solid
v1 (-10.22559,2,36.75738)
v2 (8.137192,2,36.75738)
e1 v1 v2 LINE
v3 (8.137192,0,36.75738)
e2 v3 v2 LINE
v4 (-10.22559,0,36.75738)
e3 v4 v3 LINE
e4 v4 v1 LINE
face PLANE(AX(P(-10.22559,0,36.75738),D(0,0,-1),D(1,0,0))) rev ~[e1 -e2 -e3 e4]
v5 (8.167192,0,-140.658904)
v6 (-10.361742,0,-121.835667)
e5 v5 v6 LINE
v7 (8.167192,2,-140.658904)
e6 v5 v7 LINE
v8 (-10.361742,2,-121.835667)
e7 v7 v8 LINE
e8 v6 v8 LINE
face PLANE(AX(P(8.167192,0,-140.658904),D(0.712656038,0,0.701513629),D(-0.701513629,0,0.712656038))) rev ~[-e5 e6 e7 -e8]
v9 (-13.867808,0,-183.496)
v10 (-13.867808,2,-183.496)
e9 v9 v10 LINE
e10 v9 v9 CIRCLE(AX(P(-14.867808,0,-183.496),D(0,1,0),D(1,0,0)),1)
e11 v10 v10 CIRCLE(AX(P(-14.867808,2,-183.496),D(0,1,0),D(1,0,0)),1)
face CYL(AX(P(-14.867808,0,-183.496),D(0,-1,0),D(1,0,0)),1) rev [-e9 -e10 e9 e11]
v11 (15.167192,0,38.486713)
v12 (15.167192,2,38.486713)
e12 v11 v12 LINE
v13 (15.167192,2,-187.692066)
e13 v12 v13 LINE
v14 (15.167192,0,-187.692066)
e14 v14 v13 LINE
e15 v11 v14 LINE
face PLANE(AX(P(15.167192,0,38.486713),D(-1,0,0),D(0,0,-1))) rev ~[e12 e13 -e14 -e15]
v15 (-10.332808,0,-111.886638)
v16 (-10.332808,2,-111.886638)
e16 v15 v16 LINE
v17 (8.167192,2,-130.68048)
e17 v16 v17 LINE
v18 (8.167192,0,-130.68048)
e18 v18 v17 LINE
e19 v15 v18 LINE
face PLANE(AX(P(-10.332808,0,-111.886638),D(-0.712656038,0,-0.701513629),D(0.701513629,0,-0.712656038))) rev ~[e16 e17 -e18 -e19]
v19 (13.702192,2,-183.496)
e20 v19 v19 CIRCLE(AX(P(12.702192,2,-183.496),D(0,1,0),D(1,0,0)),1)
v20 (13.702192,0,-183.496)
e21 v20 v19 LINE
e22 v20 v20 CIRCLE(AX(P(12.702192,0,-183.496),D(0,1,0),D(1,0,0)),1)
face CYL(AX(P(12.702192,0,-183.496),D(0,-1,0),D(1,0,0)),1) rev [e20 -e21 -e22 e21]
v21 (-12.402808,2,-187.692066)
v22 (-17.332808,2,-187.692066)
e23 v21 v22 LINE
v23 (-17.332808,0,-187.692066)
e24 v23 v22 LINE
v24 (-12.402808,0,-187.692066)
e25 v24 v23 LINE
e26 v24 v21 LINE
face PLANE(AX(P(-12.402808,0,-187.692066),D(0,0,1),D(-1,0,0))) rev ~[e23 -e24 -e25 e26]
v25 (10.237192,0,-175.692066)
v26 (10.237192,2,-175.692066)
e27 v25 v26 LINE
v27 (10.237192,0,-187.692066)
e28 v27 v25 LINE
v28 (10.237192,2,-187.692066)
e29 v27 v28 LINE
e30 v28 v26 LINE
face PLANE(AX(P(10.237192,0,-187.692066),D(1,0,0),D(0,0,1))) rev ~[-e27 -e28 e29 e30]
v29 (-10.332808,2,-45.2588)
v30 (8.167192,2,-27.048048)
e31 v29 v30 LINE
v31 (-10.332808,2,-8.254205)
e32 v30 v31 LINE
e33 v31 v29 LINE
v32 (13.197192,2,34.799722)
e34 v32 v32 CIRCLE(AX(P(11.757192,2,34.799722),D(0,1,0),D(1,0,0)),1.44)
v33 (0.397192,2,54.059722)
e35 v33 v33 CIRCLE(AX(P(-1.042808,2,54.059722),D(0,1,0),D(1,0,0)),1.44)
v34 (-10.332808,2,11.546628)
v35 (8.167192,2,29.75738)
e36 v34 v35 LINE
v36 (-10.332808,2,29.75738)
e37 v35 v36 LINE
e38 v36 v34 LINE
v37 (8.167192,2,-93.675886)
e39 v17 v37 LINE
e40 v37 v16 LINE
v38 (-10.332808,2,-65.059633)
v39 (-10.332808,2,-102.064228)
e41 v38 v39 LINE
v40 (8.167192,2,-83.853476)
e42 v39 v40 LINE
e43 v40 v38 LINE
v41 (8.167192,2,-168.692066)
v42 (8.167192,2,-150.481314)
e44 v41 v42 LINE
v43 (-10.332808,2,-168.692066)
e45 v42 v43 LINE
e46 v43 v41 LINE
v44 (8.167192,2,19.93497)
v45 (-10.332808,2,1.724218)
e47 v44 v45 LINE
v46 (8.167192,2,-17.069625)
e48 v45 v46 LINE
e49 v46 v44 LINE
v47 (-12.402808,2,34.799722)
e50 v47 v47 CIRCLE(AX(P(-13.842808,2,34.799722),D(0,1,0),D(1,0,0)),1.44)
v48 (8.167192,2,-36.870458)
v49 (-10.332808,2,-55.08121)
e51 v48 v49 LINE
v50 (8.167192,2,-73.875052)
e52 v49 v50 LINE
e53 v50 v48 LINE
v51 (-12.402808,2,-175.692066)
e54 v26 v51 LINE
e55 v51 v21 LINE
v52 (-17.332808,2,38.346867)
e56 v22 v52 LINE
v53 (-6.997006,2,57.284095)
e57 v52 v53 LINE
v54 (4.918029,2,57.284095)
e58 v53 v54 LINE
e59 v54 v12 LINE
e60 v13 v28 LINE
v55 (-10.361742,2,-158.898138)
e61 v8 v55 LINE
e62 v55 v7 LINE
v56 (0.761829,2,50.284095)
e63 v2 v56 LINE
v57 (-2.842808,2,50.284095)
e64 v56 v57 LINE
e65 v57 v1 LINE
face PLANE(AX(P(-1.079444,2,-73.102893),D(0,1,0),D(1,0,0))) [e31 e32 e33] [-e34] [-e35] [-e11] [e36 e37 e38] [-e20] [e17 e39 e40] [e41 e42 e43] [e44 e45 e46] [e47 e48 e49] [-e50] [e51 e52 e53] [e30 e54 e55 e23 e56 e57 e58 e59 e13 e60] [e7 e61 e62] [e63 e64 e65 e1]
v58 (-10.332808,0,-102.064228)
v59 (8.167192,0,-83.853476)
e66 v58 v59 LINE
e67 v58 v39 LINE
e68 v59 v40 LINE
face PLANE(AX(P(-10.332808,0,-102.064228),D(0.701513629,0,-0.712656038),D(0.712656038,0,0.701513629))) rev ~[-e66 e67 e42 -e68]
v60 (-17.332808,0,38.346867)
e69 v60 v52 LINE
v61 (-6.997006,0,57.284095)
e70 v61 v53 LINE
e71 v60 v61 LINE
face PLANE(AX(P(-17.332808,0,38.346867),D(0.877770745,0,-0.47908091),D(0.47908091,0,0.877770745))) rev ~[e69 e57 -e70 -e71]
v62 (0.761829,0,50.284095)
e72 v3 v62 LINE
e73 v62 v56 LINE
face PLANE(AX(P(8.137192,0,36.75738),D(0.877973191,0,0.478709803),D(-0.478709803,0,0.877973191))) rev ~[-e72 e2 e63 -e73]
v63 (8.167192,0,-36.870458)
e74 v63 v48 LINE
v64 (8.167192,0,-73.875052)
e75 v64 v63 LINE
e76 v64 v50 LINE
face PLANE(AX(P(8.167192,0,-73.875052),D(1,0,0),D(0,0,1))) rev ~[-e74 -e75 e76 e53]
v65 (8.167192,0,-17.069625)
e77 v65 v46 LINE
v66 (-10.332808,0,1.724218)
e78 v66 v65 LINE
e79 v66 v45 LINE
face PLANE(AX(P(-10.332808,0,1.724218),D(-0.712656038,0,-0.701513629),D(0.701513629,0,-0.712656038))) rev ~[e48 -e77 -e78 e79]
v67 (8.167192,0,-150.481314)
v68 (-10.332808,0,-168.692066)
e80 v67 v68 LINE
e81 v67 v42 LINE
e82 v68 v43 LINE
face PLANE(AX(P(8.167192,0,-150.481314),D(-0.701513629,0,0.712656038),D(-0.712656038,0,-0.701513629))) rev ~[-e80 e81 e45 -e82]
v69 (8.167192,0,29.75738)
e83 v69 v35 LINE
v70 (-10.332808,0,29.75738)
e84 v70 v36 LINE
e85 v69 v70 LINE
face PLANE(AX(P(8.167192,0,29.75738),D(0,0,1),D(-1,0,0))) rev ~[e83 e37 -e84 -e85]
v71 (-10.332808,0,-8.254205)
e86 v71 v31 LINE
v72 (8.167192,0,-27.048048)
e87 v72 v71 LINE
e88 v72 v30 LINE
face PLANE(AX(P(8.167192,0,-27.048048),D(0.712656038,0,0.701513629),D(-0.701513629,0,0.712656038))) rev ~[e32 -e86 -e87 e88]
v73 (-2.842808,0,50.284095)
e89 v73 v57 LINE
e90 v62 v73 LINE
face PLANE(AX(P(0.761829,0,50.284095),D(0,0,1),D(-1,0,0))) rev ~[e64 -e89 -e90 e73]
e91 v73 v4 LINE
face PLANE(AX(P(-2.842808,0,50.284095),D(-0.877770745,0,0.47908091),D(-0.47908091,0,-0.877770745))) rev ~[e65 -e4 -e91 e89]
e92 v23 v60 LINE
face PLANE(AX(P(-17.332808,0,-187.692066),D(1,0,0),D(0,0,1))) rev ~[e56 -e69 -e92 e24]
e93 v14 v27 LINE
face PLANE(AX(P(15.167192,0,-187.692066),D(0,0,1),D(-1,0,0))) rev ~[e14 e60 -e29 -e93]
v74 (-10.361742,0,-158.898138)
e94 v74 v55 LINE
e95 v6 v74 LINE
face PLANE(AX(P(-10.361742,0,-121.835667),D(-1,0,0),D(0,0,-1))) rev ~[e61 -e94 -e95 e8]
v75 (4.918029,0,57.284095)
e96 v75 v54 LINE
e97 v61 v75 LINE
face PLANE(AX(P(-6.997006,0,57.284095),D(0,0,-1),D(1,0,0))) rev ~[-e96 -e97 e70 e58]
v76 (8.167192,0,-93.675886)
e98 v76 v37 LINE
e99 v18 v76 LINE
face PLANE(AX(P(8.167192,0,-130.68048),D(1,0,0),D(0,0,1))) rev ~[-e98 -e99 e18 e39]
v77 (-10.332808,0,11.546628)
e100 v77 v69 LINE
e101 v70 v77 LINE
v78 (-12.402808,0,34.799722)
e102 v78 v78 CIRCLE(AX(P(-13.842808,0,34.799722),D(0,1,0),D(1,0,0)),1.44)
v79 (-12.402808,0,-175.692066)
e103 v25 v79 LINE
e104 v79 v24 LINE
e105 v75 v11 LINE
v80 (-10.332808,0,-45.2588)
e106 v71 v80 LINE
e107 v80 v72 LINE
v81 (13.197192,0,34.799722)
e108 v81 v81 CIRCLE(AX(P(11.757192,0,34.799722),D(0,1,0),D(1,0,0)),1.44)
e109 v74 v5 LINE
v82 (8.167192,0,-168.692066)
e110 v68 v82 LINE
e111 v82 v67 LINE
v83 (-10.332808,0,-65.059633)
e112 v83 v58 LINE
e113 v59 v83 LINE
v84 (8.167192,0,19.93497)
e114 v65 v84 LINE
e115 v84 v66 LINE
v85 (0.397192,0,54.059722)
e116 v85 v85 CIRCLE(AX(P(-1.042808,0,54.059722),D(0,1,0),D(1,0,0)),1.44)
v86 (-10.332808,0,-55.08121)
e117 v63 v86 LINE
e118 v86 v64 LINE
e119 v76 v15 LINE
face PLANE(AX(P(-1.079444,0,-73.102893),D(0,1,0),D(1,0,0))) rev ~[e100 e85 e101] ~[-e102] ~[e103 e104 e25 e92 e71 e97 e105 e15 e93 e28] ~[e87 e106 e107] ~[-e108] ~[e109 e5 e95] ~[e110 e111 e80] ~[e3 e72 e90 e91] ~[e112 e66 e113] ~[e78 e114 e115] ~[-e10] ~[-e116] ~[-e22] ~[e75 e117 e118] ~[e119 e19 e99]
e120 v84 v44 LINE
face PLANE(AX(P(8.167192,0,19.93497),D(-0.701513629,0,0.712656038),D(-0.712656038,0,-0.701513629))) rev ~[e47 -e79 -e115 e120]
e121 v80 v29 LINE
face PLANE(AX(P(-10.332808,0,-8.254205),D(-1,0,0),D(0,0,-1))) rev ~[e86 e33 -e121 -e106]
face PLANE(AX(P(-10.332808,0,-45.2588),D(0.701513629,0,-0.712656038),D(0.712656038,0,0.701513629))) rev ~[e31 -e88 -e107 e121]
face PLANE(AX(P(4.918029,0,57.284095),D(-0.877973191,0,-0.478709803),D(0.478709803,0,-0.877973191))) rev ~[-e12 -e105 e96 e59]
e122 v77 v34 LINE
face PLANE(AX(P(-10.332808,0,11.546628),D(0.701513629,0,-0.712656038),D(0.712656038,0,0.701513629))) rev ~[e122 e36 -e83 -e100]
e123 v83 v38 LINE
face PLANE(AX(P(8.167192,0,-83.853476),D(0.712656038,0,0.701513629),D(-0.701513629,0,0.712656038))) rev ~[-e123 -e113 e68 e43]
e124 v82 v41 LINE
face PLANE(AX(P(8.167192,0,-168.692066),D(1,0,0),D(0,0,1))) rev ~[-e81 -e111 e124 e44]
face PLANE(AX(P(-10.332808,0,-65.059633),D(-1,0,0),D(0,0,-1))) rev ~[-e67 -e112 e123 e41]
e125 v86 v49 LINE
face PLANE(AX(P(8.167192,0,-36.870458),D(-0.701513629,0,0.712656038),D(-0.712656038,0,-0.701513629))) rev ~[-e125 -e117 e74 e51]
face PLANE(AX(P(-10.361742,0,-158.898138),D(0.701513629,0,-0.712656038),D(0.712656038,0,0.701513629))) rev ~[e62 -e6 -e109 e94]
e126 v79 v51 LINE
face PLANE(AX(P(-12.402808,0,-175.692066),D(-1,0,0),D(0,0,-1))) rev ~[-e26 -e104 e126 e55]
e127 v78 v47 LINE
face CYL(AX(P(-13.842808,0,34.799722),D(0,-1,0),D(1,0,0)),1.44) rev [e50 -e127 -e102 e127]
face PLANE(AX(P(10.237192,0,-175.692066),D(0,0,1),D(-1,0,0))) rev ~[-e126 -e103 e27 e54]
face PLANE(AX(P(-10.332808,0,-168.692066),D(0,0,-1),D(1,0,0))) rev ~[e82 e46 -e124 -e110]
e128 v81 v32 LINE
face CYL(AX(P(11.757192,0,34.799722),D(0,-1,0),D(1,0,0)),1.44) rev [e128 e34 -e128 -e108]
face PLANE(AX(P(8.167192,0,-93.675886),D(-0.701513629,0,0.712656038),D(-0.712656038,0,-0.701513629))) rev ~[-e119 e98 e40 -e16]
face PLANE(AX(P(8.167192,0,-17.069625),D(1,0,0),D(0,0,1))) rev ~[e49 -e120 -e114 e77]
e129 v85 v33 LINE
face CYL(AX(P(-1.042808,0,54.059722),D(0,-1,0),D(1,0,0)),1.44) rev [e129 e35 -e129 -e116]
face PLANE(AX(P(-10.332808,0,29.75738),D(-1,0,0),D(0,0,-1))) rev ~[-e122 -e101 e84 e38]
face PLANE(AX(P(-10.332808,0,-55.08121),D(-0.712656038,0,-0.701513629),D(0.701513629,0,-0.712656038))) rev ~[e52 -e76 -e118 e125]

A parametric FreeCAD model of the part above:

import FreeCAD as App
import Part
import Sketcher

doc = App.newDocument("Part")
body = doc.addObject("PartDesign::Body", "Body")

# Sketch on XZ plane
sketch1 = body.newObject("Sketcher::SketchObject", "Sketch")
sketch1.AttachmentSupport = (doc.getObject("XZ_Plane"), [""])
sketch1.MapMode = "FlatFace"
sketch1.addGeometry(Part.LineSegment(App.Vector(-17.332808, 38.346867, 0), App.Vector(-6.997006, 57.284095, 0)), False)
sketch1.addGeometry(Part.LineSegment(App.Vector(-6.997006, 57.284095, 0), App.Vector(4.918029, 57.284095, 0)), False)
sketch1.addGeometry(Part.LineSegment(App.Vector(4.918029, 57.284095, 0), App.Vector(15.167192, 38.486713, 0)), False)
sketch1.addGeometry(Part.LineSegment(App.Vector(15.167192, 38.486713, 0), App.Vector(15.167192, -187.692066, 0)), False)
sketch1.addGeometry(Part.LineSegment(App.Vector(15.167192, -187.692066, 0), App.Vector(10.237192, -187.692066, 0)), False)
sketch1.addGeometry(Part.LineSegment(App.Vector(10.237192, -187.692066, 0), App.Vector(10.237192, -175.692066, 0)), False)
sketch1.addGeometry(Part.LineSegment(App.Vector(10.237192, -175.692066, 0), App.Vector(-12.402808, -175.692066, 0)), False)
sketch1.addGeometry(Part.LineSegment(App.Vector(-12.402808, -175.692066, 0), App.Vector(-12.402808, -187.692066, 0)), False)
sketch1.addGeometry(Part.LineSegment(App.Vector(-12.402808, -187.692066, 0), App.Vector(-17.332808, -187.692066, 0)), False)
sketch1.addGeometry(Part.LineSegment(App.Vector(-17.332808, -187.692066, 0), App.Vector(-17.332808, 38.346867, 0)), False)
sketch1.addGeometry(Part.Circle(App.Vector(-13.842808, 34.799722, 0), App.Vector(0, 0, 1), 1.44), False)
sketch1.addGeometry(Part.LineSegment(App.Vector(8.167192, -73.875052, 0), App.Vector(8.167192, -36.870458, 0)), False)
sketch1.addGeometry(Part.LineSegment(App.Vector(8.167192, -36.870458, 0), App.Vector(-10.332808, -55.08121, 0)), False)
sketch1.addGeometry(Part.LineSegment(App.Vector(-10.332808, -55.08121, 0), App.Vector(8.167192, -73.875052, 0)), False)
sketch1.addGeometry(Part.Circle(App.Vector(-1.042808, 54.059722, 0), App.Vector(0, 0, 1), 1.44), False)
sketch1.addGeometry(Part.LineSegment(App.Vector(0.761829, 50.284095, 0), App.Vector(-2.842808, 50.284095, 0)), False)
sketch1.addGeometry(Part.LineSegment(App.Vector(-2.842808, 50.284095, 0), App.Vector(-10.22559, 36.75738, 0)), False)
sketch1.addGeometry(Part.LineSegment(App.Vector(-10.22559, 36.75738, 0), App.Vector(8.137192, 36.75738, 0)), False)
sketch1.addGeometry(Part.LineSegment(App.Vector(8.137192, 36.75738, 0), App.Vector(0.761829, 50.284095, 0)), False)
sketch1.addGeometry(Part.LineSegment(App.Vector(-10.332808, 11.546628, 0), App.Vector(8.167192, 29.75738, 0)), False)
sketch1.addGeometry(Part.LineSegment(App.Vector(8.167192, 29.75738, 0), App.Vector(-10.332808, 29.75738, 0)), False)
sketch1.addGeometry(Part.LineSegment(App.Vector(-10.332808, 29.75738, 0), App.Vector(-10.332808, 11.546628, 0)), False)
sketch1.addGeometry(Part.LineSegment(App.Vector(8.167192, -17.069625, 0), App.Vector(8.167192, 19.93497, 0)), False)
sketch1.addGeometry(Part.LineSegment(App.Vector(8.167192, 19.93497, 0), App.Vector(-10.332808, 1.724218, 0)), False)
sketch1.addGeometry(Part.LineSegment(App.Vector(-10.332808, 1.724218, 0), App.Vector(8.167192, -17.069625, 0)), False)
sketch1.addGeometry(Part.Circle(App.Vector(11.757192, 34.799722, 0), App.Vector(0, 0, 1), 1.44), False)
sketch1.addGeometry(Part.LineSegment(App.Vector(-10.332808, -45.2588, 0), App.Vector(8.167192, -27.048048, 0)), False)
sketch1.addGeometry(Part.LineSegment(App.Vector(8.167192, -27.048048, 0), App.Vector(-10.332808, -8.254205, 0)), False)
sketch1.addGeometry(Part.LineSegment(App.Vector(-10.332808, -8.254205, 0), App.Vector(-10.332808, -45.2588, 0)), False)
sketch1.addGeometry(Part.LineSegment(App.Vector(8.167192, -130.68048, 0), App.Vector(8.167192, -93.675886, 0)), False)
sketch1.addGeometry(Part.LineSegment(App.Vector(8.167192, -93.675886, 0), App.Vector(-10.332808, -111.886638, 0)), False)
sketch1.addGeometry(Part.LineSegment(App.Vector(-10.332808, -111.886638, 0), App.Vector(8.167192, -130.68048, 0)), False)
sketch1.addGeometry(Part.Circle(App.Vector(-14.867808, -183.496, 0), App.Vector(0, 0, 1), 1), False)
sketch1.addGeometry(Part.LineSegment(App.Vector(-10.361742, -158.898138, 0), App.Vector(8.167192, -140.658904, 0)), False)
sketch1.addGeometry(Part.LineSegment(App.Vector(8.167192, -140.658904, 0), App.Vector(-10.361742, -121.835667, 0)), False)
sketch1.addGeometry(Part.LineSegment(App.Vector(-10.361742, -121.835667, 0), App.Vector(-10.361742, -158.898138, 0)), False)
sketch1.addGeometry(Part.LineSegment(App.Vector(8.167192, -168.692066, 0), App.Vector(8.167192, -150.481314, 0)), False)
sketch1.addGeometry(Part.LineSegment(App.Vector(8.167192, -150.481314, 0), App.Vector(-10.332808, -168.692066, 0)), False)
sketch1.addGeometry(Part.LineSegment(App.Vector(-10.332808, -168.692066, 0), App.Vector(8.167192, -168.692066, 0)), False)
sketch1.addGeometry(Part.LineSegment(App.Vector(-10.332808, -102.064228, 0), App.Vector(8.167192, -83.853476, 0)), False)
sketch1.addGeometry(Part.LineSegment(App.Vector(8.167192, -83.853476, 0), App.Vector(-10.332808, -65.059633, 0)), False)
sketch1.addGeometry(Part.LineSegment(App.Vector(-10.332808, -65.059633, 0), App.Vector(-10.332808, -102.064228, 0)), False)
sketch1.addGeometry(Part.Circle(App.Vector(12.702192, -183.496, 0), App.Vector(0, 0, 1), 1), False)
sketch1.addConstraint(Sketcher.Constraint("Coincident", 0, 2, 1, 1))
sketch1.addConstraint(Sketcher.Constraint("Coincident", 1, 2, 2, 1))
sketch1.addConstraint(Sketcher.Constraint("Coincident", 2, 2, 3, 1))
sketch1.addConstraint(Sketcher.Constraint("Coincident", 3, 2, 4, 1))
sketch1.addConstraint(Sketcher.Constraint("Coincident", 4, 2, 5, 1))
sketch1.addConstraint(Sketcher.Constraint("Coincident", 5, 2, 6, 1))
sketch1.addConstraint(Sketcher.Constraint("Coincident", 6, 2, 7, 1))
sketch1.addConstraint(Sketcher.Constraint("Coincident", 7, 2, 8, 1))
sketch1.addConstraint(Sketcher.Constraint("Coincident", 8, 2, 9, 1))
sketch1.addConstraint(Sketcher.Constraint("Coincident", 9, 2, 0, 1))
sketch1.addConstraint(Sketcher.Constraint("Coincident", 11, 2, 12, 1))
sketch1.addConstraint(Sketcher.Constraint("Coincident", 12, 2, 13, 1))
sketch1.addConstraint(Sketcher.Constraint("Coincident", 13, 2, 11, 1))
sketch1.addConstraint(Sketcher.Constraint("Coincident", 15, 2, 16, 1))
sketch1.addConstraint(Sketcher.Constraint("Coincident", 16, 2, 17, 1))
sketch1.addConstraint(Sketcher.Constraint("Coincident", 17, 2, 18, 1))
sketch1.addConstraint(Sketcher.Constraint("Coincident", 18, 2, 15, 1))
sketch1.addConstraint(Sketcher.Constraint("Coincident", 19, 2, 20, 1))
sketch1.addConstraint(Sketcher.Constraint("Coincident", 20, 2, 21, 1))
sketch1.addConstraint(Sketcher.Constraint("Coincident", 21, 2, 19, 1))
sketch1.addConstraint(Sketcher.Constraint("Coincident", 22, 2, 23, 1))
sketch1.addConstraint(Sketcher.Constraint("Coincident", 23, 2, 24, 1))
sketch1.addConstraint(Sketcher.Constraint("Coincident", 24, 2, 22, 1))
sketch1.addConstraint(Sketcher.Constraint("Coincident", 26, 2, 27, 1))
sketch1.addConstraint(Sketcher.Constraint("Coincident", 27, 2, 28, 1))
sketch1.addConstraint(Sketcher.Constraint("Coincident", 28, 2, 26, 1))
sketch1.addConstraint(Sketcher.Constraint("Coincident", 29, 2, 30, 1))
sketch1.addConstraint(Sketcher.Constraint("Coincident", 30, 2, 31, 1))
sketch1.addConstraint(Sketcher.Constraint("Coincident", 31, 2, 29, 1))
sketch1.addConstraint(Sketcher.Constraint("Coincident", 33, 2, 34, 1))
sketch1.addConstraint(Sketcher.Constraint("Coincident", 34, 2, 35, 1))
sketch1.addConstraint(Sketcher.Constraint("Coincident", 35, 2, 33, 1))
sketch1.addConstraint(Sketcher.Constraint("Coincident", 36, 2, 37, 1))
sketch1.addConstraint(Sketcher.Constraint("Coincident", 37, 2, 38, 1))
sketch1.addConstraint(Sketcher.Constraint("Coincident", 38, 2, 36, 1))
sketch1.addConstraint(Sketcher.Constraint("Coincident", 39, 2, 40, 1))
sketch1.addConstraint(Sketcher.Constraint("Coincident", 40, 2, 41, 1))
sketch1.addConstraint(Sketcher.Constraint("Coincident", 41, 2, 39, 1))
sketch1.addConstraint(Sketcher.Constraint("Horizontal", 1))
sketch1.addConstraint(Sketcher.Constraint("Vertical", 3))
sketch1.addConstraint(Sketcher.Constraint("Horizontal", 4))
sketch1.addConstraint(Sketcher.Constraint("Vertical", 5))
sketch1.addConstraint(Sketcher.Constraint("Horizontal", 6))
sketch1.addConstraint(Sketcher.Constraint("Vertical", 7))
sketch1.addConstraint(Sketcher.Constraint("Horizontal", 8))
sketch1.addConstraint(Sketcher.Constraint("Vertical", 9))
sketch1.addConstraint(Sketcher.Constraint("Vertical", 11))
sketch1.addConstraint(Sketcher.Constraint("Horizontal", 15))
sketch1.addConstraint(Sketcher.Constraint("Horizontal", 17))
sketch1.addConstraint(Sketcher.Constraint("Horizontal", 20))
sketch1.addConstraint(Sketcher.Constraint("Vertical", 21))
sketch1.addConstraint(Sketcher.Constraint("Vertical", 22))
sketch1.addConstraint(Sketcher.Constraint("Vertical", 28))
sketch1.addConstraint(Sketcher.Constraint("Vertical", 29))
sketch1.addConstraint(Sketcher.Constraint("Vertical", 35))
sketch1.addConstraint(Sketcher.Constraint("Vertical", 36))
sketch1.addConstraint(Sketcher.Constraint("Horizontal", 38))
sketch1.addConstraint(Sketcher.Constraint("Vertical", 41))
sketch1.addConstraint(Sketcher.Constraint("Equal", 10, 14))
sketch1.addConstraint(Sketcher.Constraint("Equal", 14, 25))
sketch1.addConstraint(Sketcher.Constraint("Equal", 32, 42))
sketch1.addConstraint(Sketcher.Constraint("Perpendicular", 12, 13))
sketch1.addConstraint(Sketcher.Constraint("Parallel", 0, 16))
sketch1.addConstraint(Sketcher.Constraint("Parallel", 2, 18))
sketch1.addConstraint(Sketcher.Constraint("Perpendicular", 13, 19))
sketch1.addConstraint(Sketcher.Constraint("Parallel", 19, 23))
sketch1.addConstraint(Sketcher.Constraint("Perpendicular", 23, 24))
sketch1.addConstraint(Sketcher.Constraint("Perpendicular", 24, 26))
sketch1.addConstraint(Sketcher.Constraint("Perpendicular", 26, 27))
sketch1.addConstraint(Sketcher.Constraint("Perpendicular", 27, 30))
sketch1.addConstraint(Sketcher.Constraint("Perpendicular", 30, 31))
sketch1.addConstraint(Sketcher.Constraint("Perpendicular", 31, 33))
sketch1.addConstraint(Sketcher.Constraint("Perpendicular", 33, 34))
sketch1.addConstraint(Sketcher.Constraint("Perpendicular", 34, 37))
sketch1.addConstraint(Sketcher.Constraint("Parallel", 37, 39))
sketch1.addConstraint(Sketcher.Constraint("Perpendicular", 39, 40))
sketch1.addConstraint(Sketcher.Constraint("Horizontal", 10, 3, 25, 3))
sketch1.addConstraint(Sketcher.Constraint("Horizontal", 32, 3, 42, 3))
sketch1.addConstraint(Sketcher.Constraint("Horizontal", 4, 2, 7, 2))
sketch1.addConstraint(Sketcher.Constraint("Vertical", 13, 2, 19, 2))
sketch1.addConstraint(Sketcher.Constraint("Vertical", 12, 2, 20, 2))
sketch1.addConstraint(Sketcher.Constraint("Vertical", 19, 2, 22, 2))
sketch1.addConstraint(Sketcher.Constraint("Vertical", 21, 2, 23, 2))
sketch1.addConstraint(Sketcher.Constraint("Vertical", 24, 2, 26, 2))
sketch1.addConstraint(Sketcher.Constraint("Vertical", 23, 2, 27, 2))
sketch1.addConstraint(Sketcher.Constraint("Vertical", 26, 2, 29, 2))
sketch1.addConstraint(Sketcher.Constraint("Vertical", 28, 2, 30, 2))
sketch1.addConstraint(Sketcher.Constraint("Vertical", 31, 2, 33, 2))
sketch1.addConstraint(Sketcher.Constraint("Vertical", 33, 2, 36, 2))
sketch1.addConstraint(Sketcher.Constraint("Vertical", 30, 2, 37, 2))
sketch1.addConstraint(Sketcher.Constraint("Vertical", 38, 2, 39, 2))
sketch1.addConstraint(Sketcher.Constraint("Vertical", 37, 2, 40, 2))
sketch1.addConstraint(Sketcher.Constraint("Equal", 4, 8))
sketch1.addConstraint(Sketcher.Constraint("Diameter", 32, 2.0))
sketch1.addConstraint(Sketcher.Constraint("Diameter", 10, 2.88))
sketch1.addConstraint(Sketcher.Constraint("DistanceY", 5, 1, 5, 2, 12.0))
sketch1.addConstraint(Sketcher.Constraint("DistanceX", 20, 2, 20, 1, 18.5))
sketch1.addConstraint(Sketcher.Constraint("DistanceX", 11, 2, 2, 2, 7.0))
sketch1.addConstraint(Sketcher.Constraint("DistanceX", 9, 2, 12, 2, 7.0))
sketch1.addConstraint(Sketcher.Constraint("DistanceY", 15, 2, 0, 2, 7.0))
sketch1.addConstraint(Sketcher.Constraint("DistanceX", 10, 3, 15, 2, 11.0))
sketch1.addConstraint(Sketcher.Constraint("DistanceY", 19, 2, 17, 2, 7.0))
sketch1.addConstraint(Sketcher.Constraint("DistanceY", 6, 2, 37, 2, 7.0))
sketch1.addConstraint(Sketcher.Constraint("DistanceX", 4, 2, 4, 1, 4.93))
sketch1.addConstraint(Sketcher.Constraint("DistanceX", 10, 3, 14, 3, 12.8))
sketch1.addConstraint(Sketcher.Constraint("DistanceX", 14, 3, 25, 3, 12.8))
sketch1.addConstraint(Sketcher.Constraint("DistanceY", 10, 3, 14, 3, 19.26))
sketch1.addConstraint(Sketcher.Constraint("DistanceX", 32, 3, 42, 3, 27.57))
sketch1.addConstraint(Sketcher.Constraint("DistanceX", 25, 3, 2, 2, 3.41))
sketch1.addConstraint(Sketcher.Constraint("DistanceX", 17, 2, 25, 3, 3.62))
sketch1.addConstraint(Sketcher.Constraint("DistanceY", 32, 3, -1, 1, 183.496))
sketch1.addConstraint(Sketcher.Constraint("DistanceX", 32, 3, 10, 3, 1.025))
sketch1.addConstraint(Sketcher.Constraint("DistanceY", 3, 2, 3, 1, 226.178778))
sketch1.addConstraint(Sketcher.Constraint("DistanceY", 21, 2, 21, 1, 18.210752))
sketch1.addConstraint(Sketcher.Constraint("DistanceY", 35, 2, 35, 1, 37.062471))
sketch1.addConstraint(Sketcher.Constraint("DistanceY", 28, 2, -1, 1, 45.2588))
sketch1.addConstraint(Sketcher.Constraint("DistanceX", 0, 2, 14, 3, 5.954198))
sketch1.addConstraint(Sketcher.Constraint("DistanceX", 18, 2, 1, 2, 4.156199))
sketch1.addConstraint(Sketcher.Constraint("Distance", 0, 21.57423))
sketch1.addConstraint(Sketcher.Constraint("Distance", 18, 15.406751))
sketch1.addConstraint(Sketcher.Constraint("DistanceX", 1, 1, 1, 2, 11.915034))
sketch1.addConstraint(Sketcher.Constraint("DistanceX", -1, 1, 1, 2, 4.918029))
sketch1.addConstraint(Sketcher.Constraint("DistanceY", 11, 2, -1, 1, 36.870458))
sketch1.addConstraint(Sketcher.Constraint("DistanceY", -1, 1, 16, 2, 36.75738))
sketch1.addConstraint(Sketcher.Constraint("DistanceY", -1, 1, 22, 2, 19.93497))
sketch1.addConstraint(Sketcher.Constraint("DistanceY", 31, 2, -1, 1, 130.68048))
sketch1.addConstraint(Sketcher.Constraint("DistanceY", 25, 3, 2, 2, 3.68699))
sketch1.addConstraint(Sketcher.Constraint("DistanceY", 5, 2, 33, 2, 35.033162))
sketch1.addConstraint(Sketcher.Constraint("DistanceY", 29, 2, 39, 2, 9.82241))
pad1 = body.newObject("PartDesign::Pad", "Pad")
pad1.Profile = sketch1
pad1.Length = 2
pad1.Reversed = True

doc.recompute()
